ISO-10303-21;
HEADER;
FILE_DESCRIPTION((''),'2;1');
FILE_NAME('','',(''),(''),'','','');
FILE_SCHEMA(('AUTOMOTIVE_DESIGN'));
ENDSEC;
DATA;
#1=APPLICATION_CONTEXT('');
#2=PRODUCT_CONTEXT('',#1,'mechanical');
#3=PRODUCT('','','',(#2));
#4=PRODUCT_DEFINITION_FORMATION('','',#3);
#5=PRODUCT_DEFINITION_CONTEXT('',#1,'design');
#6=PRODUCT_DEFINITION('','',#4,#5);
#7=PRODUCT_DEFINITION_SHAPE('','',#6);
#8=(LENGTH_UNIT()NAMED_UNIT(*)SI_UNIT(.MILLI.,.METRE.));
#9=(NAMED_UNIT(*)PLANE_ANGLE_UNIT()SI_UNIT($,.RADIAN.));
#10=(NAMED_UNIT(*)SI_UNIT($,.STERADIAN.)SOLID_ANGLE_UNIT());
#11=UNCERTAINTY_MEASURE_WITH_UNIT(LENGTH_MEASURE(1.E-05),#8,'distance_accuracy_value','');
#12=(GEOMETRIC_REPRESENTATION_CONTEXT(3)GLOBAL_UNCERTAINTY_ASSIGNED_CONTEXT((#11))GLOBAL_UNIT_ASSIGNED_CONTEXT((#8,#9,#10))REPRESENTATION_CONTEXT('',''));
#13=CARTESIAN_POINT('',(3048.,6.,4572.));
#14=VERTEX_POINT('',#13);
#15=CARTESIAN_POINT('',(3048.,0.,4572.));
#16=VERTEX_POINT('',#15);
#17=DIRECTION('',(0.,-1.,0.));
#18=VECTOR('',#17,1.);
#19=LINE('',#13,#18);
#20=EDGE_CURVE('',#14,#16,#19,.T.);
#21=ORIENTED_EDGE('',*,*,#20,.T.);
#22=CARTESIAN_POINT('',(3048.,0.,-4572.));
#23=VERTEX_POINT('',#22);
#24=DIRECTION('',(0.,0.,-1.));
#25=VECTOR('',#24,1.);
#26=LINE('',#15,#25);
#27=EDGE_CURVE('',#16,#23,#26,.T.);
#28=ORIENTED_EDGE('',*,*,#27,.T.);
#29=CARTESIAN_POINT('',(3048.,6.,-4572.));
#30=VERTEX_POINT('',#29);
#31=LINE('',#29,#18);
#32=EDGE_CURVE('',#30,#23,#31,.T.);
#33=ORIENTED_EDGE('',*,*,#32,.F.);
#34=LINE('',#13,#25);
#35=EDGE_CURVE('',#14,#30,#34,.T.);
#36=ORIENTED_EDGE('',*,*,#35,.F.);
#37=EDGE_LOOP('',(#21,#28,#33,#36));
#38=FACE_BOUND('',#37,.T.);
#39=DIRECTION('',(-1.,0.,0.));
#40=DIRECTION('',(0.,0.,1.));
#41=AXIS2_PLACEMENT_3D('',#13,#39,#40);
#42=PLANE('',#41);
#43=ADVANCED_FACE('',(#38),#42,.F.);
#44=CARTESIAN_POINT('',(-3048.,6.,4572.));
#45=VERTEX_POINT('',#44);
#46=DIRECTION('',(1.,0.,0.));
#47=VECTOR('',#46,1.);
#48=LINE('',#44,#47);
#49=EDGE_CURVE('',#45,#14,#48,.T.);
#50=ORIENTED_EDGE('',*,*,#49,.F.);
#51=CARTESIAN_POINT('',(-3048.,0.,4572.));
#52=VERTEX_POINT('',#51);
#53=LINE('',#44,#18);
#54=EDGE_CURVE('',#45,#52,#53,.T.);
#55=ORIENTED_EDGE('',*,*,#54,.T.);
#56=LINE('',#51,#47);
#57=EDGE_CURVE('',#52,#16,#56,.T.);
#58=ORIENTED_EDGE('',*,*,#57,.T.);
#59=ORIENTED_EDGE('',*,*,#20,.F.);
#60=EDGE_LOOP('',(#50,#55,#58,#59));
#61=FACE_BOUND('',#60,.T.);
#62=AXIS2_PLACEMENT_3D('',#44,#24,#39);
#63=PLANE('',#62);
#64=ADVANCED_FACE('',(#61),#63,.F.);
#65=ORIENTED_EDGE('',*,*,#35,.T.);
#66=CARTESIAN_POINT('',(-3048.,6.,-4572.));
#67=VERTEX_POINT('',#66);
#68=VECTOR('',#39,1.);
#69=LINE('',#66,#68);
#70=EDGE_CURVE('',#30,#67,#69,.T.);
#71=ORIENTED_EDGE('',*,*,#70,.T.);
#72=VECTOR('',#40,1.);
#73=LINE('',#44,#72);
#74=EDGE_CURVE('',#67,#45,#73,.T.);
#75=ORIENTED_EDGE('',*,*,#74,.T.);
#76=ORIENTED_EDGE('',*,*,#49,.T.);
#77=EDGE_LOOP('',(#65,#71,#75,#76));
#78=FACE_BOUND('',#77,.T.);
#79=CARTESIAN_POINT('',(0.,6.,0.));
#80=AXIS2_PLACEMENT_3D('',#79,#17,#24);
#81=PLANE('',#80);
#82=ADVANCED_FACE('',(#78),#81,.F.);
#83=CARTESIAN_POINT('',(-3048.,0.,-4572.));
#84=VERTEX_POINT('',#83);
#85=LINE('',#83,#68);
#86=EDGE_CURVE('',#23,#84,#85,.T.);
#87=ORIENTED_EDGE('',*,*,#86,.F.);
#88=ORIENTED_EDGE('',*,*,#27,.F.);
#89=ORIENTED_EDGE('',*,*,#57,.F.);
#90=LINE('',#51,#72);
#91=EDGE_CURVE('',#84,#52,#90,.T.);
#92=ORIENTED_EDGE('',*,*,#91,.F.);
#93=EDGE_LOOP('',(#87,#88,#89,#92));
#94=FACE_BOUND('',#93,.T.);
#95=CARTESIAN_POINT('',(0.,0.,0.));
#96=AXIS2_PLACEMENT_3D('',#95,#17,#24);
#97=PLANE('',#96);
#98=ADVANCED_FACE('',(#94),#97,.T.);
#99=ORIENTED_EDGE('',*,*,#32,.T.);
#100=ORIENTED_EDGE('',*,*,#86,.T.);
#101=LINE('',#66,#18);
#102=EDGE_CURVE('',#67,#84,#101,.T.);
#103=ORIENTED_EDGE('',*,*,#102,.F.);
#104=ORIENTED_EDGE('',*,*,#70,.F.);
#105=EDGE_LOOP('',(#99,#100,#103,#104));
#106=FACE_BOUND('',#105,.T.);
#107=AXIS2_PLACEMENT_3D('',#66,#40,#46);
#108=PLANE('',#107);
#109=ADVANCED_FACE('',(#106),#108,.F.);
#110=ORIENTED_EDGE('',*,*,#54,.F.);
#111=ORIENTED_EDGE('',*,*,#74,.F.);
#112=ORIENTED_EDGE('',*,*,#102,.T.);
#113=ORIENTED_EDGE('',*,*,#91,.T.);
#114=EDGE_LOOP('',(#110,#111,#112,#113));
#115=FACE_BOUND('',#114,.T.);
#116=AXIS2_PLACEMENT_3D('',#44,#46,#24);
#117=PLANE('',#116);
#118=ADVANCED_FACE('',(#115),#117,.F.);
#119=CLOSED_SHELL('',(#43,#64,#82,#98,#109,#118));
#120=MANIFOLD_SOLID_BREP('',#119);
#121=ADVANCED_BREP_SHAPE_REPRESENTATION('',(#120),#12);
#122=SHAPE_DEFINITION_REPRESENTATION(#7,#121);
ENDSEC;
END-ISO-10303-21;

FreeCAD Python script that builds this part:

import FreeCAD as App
import Part
import Sketcher
Q = App.Units.Quantity

doc = App.newDocument("Part")
params = doc.addObject("Spreadsheet::Sheet", "Params")
for row, (alias, value) in enumerate([
    ("sketch1_width", "240 in"),
    ("sketch1_height", "360 in"),
    ("pad1_length", "6 mm"),
], start=1):
    params.set(f"A{row}", alias)
    params.set(f"B{row}", "=" + value)
    params.setAlias(f"B{row}", alias)

body = doc.addObject("PartDesign::Body", "Body")

sketch1 = doc.addObject("Sketcher::SketchObject", "Sketch")
body.addObject(sketch1)
sketch1.AttachmentSupport = (doc.XZ_Plane, [""])
sketch1.MapMode = "FlatFace"
sketch1.addGeometry([
    Part.LineSegment(App.Vector(-3048, -4572, 0), App.Vector(-3048, 4572, 0)),
    Part.LineSegment(App.Vector(-3048, 4572, 0), App.Vector(3048, 4572, 0)),
    Part.LineSegment(App.Vector(3048, 4572, 0), App.Vector(3048, -4572, 0)),
    Part.LineSegment(App.Vector(3048, -4572, 0), App.Vector(-3048, -4572, 0)),
], False)
sketch1.addConstraint([
    Sketcher.Constraint("Coincident", 0, 2, 1, 1),
    Sketcher.Constraint("Coincident", 1, 2, 2, 1),
    Sketcher.Constraint("Coincident", 2, 2, 3, 1),
    Sketcher.Constraint("Coincident", 3, 2, 0, 1),
    Sketcher.Constraint("Vertical", 0),
    Sketcher.Constraint("Horizontal", 1),
    Sketcher.Constraint("Vertical", 2),
    Sketcher.Constraint("Horizontal", 3),
    Sketcher.Constraint("Symmetric", 0, 2, 2, 2, -1, 1),
    Sketcher.Constraint("DistanceX", 1, 1, 1, 2, Q("240 in")),
    Sketcher.Constraint("DistanceY", 0, 1, 0, 2, Q("360 in")),
])
sketch1.setExpression("Constraints[9]", "Params.sketch1_width")
sketch1.setExpression("Constraints[10]", "Params.sketch1_height")
pad1 = doc.addObject("PartDesign::Pad", "Pad")
body.addObject(pad1)
pad1.Profile = sketch1
pad1.setExpression("Length", "Params.pad1_length")
pad1.Reversed = True

doc.recompute()
